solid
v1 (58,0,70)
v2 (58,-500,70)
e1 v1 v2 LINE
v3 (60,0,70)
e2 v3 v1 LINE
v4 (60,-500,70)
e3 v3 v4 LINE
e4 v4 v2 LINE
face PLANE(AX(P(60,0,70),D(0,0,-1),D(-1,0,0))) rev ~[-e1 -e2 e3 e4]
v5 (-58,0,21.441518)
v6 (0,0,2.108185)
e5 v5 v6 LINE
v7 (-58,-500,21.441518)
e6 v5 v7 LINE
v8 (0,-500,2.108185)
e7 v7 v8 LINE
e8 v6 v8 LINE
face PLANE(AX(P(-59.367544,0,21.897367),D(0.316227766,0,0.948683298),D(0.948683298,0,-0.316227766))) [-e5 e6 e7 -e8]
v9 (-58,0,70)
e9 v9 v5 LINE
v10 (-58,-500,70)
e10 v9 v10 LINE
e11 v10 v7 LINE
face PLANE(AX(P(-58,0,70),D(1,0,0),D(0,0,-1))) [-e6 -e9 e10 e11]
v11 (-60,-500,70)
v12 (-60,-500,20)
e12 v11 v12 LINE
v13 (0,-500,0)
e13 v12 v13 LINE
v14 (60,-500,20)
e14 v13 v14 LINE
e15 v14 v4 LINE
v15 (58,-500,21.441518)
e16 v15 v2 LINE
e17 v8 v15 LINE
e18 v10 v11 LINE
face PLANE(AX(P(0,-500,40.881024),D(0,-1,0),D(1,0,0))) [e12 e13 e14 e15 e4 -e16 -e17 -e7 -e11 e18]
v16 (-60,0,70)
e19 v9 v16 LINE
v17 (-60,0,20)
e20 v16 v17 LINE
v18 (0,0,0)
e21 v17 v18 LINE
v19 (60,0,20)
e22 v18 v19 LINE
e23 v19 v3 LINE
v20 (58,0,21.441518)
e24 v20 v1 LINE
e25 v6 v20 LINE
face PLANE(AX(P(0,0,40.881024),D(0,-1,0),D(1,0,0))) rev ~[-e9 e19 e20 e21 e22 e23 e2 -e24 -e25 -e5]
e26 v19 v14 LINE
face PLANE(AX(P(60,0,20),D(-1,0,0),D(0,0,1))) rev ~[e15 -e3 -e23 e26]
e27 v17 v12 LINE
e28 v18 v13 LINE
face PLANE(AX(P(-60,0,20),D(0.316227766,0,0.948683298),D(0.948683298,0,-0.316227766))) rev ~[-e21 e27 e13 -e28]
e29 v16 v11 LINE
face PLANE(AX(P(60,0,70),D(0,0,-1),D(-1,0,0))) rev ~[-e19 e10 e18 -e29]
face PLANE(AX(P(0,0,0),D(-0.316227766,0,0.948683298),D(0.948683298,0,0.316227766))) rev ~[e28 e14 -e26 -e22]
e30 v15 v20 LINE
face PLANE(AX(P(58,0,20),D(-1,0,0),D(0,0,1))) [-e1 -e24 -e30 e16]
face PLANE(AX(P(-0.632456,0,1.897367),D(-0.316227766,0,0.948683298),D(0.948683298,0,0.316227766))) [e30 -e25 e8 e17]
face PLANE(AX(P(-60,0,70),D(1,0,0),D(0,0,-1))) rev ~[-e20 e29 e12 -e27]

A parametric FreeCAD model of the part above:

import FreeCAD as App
import Part
import Sketcher

V = App.Vector
Q = App.Units.Quantity


def faces_at(feature, points):
    """Names of the faces that lie closest to the given points."""
    faces = feature.Shape.Faces
    near = lambda p: min(range(len(faces)), key=lambda i: faces[i].distToShape(Part.Vertex(*p))[0])
    return sorted({f"Face{near(p) + 1}" for p in points})

doc = App.newDocument("Part")
body = doc.addObject("PartDesign::Body", "Body")

sketch1 = doc.addObject("Sketcher::SketchObject", "Sketch")
body.addObject(sketch1)
sketch1.AttachmentSupport = (doc.XZ_Plane, [""])
sketch1.MapMode = "FlatFace"
sketch1.addGeometry(Part.LineSegment(V(60, 70, 0), V(-60, 70, 0)), False)
sketch1.addGeometry(Part.LineSegment(V(-60, 70, 0), V(-60, 20, 0)), False)
sketch1.addGeometry(Part.LineSegment(V(-60, 20, 0), V(0, 0, 0)), False)
sketch1.addGeometry(Part.LineSegment(V(0, 0, 0), V(60, 20, 0)), False)
sketch1.addGeometry(Part.LineSegment(V(60, 20, 0), V(60, 70, 0)), False)
sketch1.addConstraint(Sketcher.Constraint("Coincident", 0, 2, 1, 1))
sketch1.addConstraint(Sketcher.Constraint("Coincident", 1, 2, 2, 1))
sketch1.addConstraint(Sketcher.Constraint("Coincident", 2, 2, 3, 1))
sketch1.addConstraint(Sketcher.Constraint("Coincident", 3, 2, 4, 1))
sketch1.addConstraint(Sketcher.Constraint("Coincident", 4, 2, 0, 1))
sketch1.addConstraint(Sketcher.Constraint("Horizontal", 0))
sketch1.addConstraint(Sketcher.Constraint("Vertical", 1))
sketch1.addConstraint(Sketcher.Constraint("Vertical", 4))
sketch1.addConstraint(Sketcher.Constraint("Coincident", 2, 2, -1, 1))
sketch1.addConstraint(Sketcher.Constraint("Symmetric", 1, 2, 3, 2, -2))
sketch1.addConstraint(Sketcher.Constraint("DistanceX", 0, 2, 0, 1, Q("120 mm")))
sketch1.addConstraint(Sketcher.Constraint("DistanceY", 1, 2, 1, 1, Q("50 mm")))
sketch1.addConstraint(Sketcher.Constraint("DistanceY", -1, 1, 0, 2, Q("70 mm")))
pad1 = doc.addObject("PartDesign::Pad", "Pad")
body.addObject(pad1)
pad1.Profile = sketch1
pad1.Length = 500
doc.recompute()

thickness = doc.addObject("PartDesign::Thickness", "Thickness")
body.addObject(thickness)
thickness.Base = (pad1, faces_at(pad1, [(0, -250, 70), (0, -500, 35), (0, 0, 35)]))
thickness.Value = 2
thickness.Reversed = True
thickness.Join = "Arc"

doc.recompute()
